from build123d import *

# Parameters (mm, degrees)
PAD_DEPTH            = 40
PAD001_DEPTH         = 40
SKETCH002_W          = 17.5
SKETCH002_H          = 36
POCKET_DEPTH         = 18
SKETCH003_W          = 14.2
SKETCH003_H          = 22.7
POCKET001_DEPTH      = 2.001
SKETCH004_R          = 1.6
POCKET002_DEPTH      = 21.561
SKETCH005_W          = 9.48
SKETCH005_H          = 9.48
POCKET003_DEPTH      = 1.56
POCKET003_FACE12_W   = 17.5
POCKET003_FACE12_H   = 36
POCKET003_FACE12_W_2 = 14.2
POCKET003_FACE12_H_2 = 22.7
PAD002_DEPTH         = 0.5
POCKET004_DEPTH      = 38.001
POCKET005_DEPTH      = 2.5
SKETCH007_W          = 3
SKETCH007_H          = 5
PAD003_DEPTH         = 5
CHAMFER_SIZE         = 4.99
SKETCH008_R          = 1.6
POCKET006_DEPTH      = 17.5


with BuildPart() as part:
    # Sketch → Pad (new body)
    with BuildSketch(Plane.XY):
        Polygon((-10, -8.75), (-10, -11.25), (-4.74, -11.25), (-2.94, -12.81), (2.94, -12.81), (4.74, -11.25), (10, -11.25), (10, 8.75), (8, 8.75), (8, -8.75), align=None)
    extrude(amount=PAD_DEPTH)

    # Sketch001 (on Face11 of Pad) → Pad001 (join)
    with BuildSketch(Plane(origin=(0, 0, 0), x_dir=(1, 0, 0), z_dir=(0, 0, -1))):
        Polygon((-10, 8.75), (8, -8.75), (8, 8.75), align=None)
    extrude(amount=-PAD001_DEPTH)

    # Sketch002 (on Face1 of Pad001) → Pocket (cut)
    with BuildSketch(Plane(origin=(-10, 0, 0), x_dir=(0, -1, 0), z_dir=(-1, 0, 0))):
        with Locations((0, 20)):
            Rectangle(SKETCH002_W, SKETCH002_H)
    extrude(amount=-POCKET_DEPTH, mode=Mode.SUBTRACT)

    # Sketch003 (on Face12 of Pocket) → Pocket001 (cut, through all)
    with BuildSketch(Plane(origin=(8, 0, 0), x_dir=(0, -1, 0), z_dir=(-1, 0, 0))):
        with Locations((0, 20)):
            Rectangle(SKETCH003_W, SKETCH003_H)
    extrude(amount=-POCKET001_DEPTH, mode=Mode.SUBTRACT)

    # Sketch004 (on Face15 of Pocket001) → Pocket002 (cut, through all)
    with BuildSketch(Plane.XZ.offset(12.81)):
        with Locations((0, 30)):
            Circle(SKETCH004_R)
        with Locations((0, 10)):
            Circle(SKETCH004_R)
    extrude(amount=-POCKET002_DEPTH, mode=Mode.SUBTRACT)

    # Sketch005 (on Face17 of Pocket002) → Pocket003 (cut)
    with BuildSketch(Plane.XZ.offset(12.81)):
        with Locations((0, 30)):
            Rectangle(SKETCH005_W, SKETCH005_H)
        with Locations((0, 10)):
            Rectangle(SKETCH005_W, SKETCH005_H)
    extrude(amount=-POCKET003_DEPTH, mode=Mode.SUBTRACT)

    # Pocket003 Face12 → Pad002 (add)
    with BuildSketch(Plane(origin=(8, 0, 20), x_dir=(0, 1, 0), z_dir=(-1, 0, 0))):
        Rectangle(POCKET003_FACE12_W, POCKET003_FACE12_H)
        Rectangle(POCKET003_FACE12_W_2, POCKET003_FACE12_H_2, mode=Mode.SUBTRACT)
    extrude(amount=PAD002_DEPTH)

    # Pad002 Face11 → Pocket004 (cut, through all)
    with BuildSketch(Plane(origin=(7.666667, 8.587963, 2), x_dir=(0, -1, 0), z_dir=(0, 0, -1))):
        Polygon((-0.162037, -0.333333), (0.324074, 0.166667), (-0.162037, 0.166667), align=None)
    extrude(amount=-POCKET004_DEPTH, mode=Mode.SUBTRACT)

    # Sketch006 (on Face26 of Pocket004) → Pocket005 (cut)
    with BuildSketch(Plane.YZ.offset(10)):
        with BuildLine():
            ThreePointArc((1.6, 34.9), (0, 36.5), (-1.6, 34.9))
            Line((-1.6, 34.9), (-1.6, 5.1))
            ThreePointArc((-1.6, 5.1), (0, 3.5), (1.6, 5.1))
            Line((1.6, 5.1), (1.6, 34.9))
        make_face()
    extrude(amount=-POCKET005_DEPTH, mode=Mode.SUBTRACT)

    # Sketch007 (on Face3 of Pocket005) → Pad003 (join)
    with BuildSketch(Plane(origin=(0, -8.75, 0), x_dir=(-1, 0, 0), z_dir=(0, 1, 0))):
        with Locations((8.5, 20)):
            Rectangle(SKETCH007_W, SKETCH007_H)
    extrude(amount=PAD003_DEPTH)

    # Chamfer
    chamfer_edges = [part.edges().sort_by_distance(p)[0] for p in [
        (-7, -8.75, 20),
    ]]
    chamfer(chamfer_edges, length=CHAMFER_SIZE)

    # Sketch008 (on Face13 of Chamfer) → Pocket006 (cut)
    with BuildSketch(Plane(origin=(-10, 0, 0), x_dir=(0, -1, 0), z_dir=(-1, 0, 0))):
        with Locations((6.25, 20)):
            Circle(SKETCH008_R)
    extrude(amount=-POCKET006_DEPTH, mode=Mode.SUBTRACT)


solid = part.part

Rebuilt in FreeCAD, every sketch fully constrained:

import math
import FreeCAD as App
import Part
import Sketcher
from FreeCAD import Vector


def edges_at(feature, points):
    """Names of the edges that pass closest to the given points."""
    edges = feature.Shape.Edges
    near = lambda p: min(range(len(edges)), key=lambda i: edges[i].distToShape(Part.Vertex(*p))[0])
    return sorted({f"Edge{near(p) + 1}" for p in points})

doc = App.newDocument("Part")
params = doc.addObject("Spreadsheet::Sheet", "Params")
for row, (alias, value) in enumerate([
    ("sketch1_width", "2 mm"),
    ("sketch1_width2", "18 mm"),
    ("sketch1_height", "20 mm"),
    ("sketch1_height2", "2.5 mm"),
    ("sketch1_width3", "5.26 mm"),
    ("pad1_length", "40 mm"),
    ("sketch2_width", "18 mm"),
    ("sketch2_height", "17.5 mm"),
    ("pad2_length", "40 mm"),
    ("sketch3_height", "36 mm"),
    ("sketch3_width", "17.5 mm"),
    ("pocket1_length", "18 mm"),
    ("sketch4_width", "14.2 mm"),
    ("sketch4_height", "22.7 mm"),
    ("sketch5_diameter", "3.2 mm"),
    ("sketch6_width", "9.48 mm"),
    ("pocket4_length", "1.56 mm"),
    ("sketch7_height", "36 mm"),
    ("sketch7_width", "17.5 mm"),
    ("sketch7_width2", "14.2 mm"),
    ("sketch7_height2", "22.7 mm"),
    ("pad3_length", "0.5 mm"),
    ("sketch8_width", "0.5 mm"),
    ("sketch9_radius", "1.6 mm"),
    ("sketch9_height", "29.8 mm"),
    ("pocket6_length", "2.5 mm"),
    ("sketch10_width", "3 mm"),
    ("sketch10_height", "5 mm"),
    ("pad4_length", "5 mm"),
    ("chamfer_size", "4.99 mm"),
    ("sketch11_diameter", "3.2 mm"),
    ("pocket7_length", "17.5 mm"),
], start=1):
    params.set(f"A{row}", alias)
    params.set(f"B{row}", "=" + value)
    params.setAlias(f"B{row}", alias)

body = doc.addObject("PartDesign::Body", "Body")

sketch1 = body.newObject("Sketcher::SketchObject", "Sketch")
sketch1.AttachmentSupport = (doc.getObject("XY_Plane"), [""])
sketch1.MapMode = "FlatFace"
sketch1.addGeometry([
    Part.LineSegment(Vector(-10, -8.8, 0), Vector(-10, -11.2, 0)),
    Part.LineSegment(Vector(-10, -11.2, 0), Vector(-4.7, -11.2, 0)),
    Part.LineSegment(Vector(-4.7, -11.2, 0), Vector(-2.9, -12.8, 0)),
    Part.LineSegment(Vector(-2.9, -12.8, 0), Vector(2.9, -12.8, 0)),
    Part.LineSegment(Vector(2.9, -12.8, 0), Vector(4.7, -11.2, 0)),
    Part.LineSegment(Vector(4.7, -11.2, 0), Vector(10, -11.2, 0)),
    Part.LineSegment(Vector(10, -11.2, 0), Vector(10, 8.8, 0)),
    Part.LineSegment(Vector(10, 8.8, 0), Vector(8, 8.8, 0)),
    Part.LineSegment(Vector(8, 8.8, 0), Vector(8, -8.8, 0)),
    Part.LineSegment(Vector(8, -8.8, 0), Vector(-10, -8.8, 0)),
], False)
sketch1.addConstraint([
    Sketcher.Constraint("Coincident", 0, 2, 1, 1),
    Sketcher.Constraint("Coincident", 1, 2, 2, 1),
    Sketcher.Constraint("Coincident", 2, 2, 3, 1),
    Sketcher.Constraint("Coincident", 3, 2, 4, 1),
    Sketcher.Constraint("Coincident", 4, 2, 5, 1),
    Sketcher.Constraint("Coincident", 5, 2, 6, 1),
    Sketcher.Constraint("Coincident", 6, 2, 7, 1),
    Sketcher.Constraint("Coincident", 7, 2, 8, 1),
    Sketcher.Constraint("Coincident", 8, 2, 9, 1),
    Sketcher.Constraint("Coincident", 9, 2, 0, 1),
    Sketcher.Constraint("Vertical", 0),
    Sketcher.Constraint("Horizontal", 1),
    Sketcher.Constraint("Horizontal", 3),
    Sketcher.Constraint("Horizontal", 5),
    Sketcher.Constraint("Vertical", 6),
    Sketcher.Constraint("Horizontal", 7),
    Sketcher.Constraint("Vertical", 8),
    Sketcher.Constraint("Horizontal", 9),
    Sketcher.Constraint("Symmetric", 6, 2, 9, 2, -1, 1),
    Sketcher.Constraint("Symmetric", 1, 2, 4, 2, -2),
    Sketcher.Constraint("Equal", 2, 4),
    Sketcher.Constraint("DistanceX", 7, 2, 7, 1, 2.0),
    Sketcher.Constraint("DistanceX", 9, 2, 9, 1, 18.0),
    Sketcher.Constraint("DistanceY", 6, 1, 6, 2, 20.0),
    Sketcher.Constraint("DistanceY", 0, 2, 0, 1, 2.5),
    Sketcher.Constraint("DistanceX", 1, 1, 1, 2, 5.26),
    Sketcher.Constraint("DistanceX", 3, 1, 3, 2, 5.88),
    Sketcher.Constraint("DistanceY", 2, 2, -1, 1, 12.81),
])
sketch1.setExpression("Constraints[21]", "Params.sketch1_width")
sketch1.setExpression("Constraints[22]", "Params.sketch1_width2")
sketch1.setExpression("Constraints[23]", "Params.sketch1_height")
sketch1.setExpression("Constraints[24]", "Params.sketch1_height2")
sketch1.setExpression("Constraints[25]", "Params.sketch1_width3")
pad1 = body.newObject("PartDesign::Pad", "Pad")
pad1.Profile = sketch1
pad1.setExpression("Length", "Params.pad1_length")

sketch2 = body.newObject("Sketcher::SketchObject", "Sketch001")
sketch2.AttachmentSupport = (doc.getObject("XY_Plane"), [""])
sketch2.MapMode = "FlatFace"
sketch2.addGeometry([
    Part.LineSegment(Vector(-10, -9, 0), Vector(8, 9, 0)),
    Part.LineSegment(Vector(8, 9, 0), Vector(8, -9, 0)),
    Part.LineSegment(Vector(8, -9, 0), Vector(-10, -9, 0)),
], False)
sketch2.addConstraint([
    Sketcher.Constraint("Coincident", 0, 2, 1, 1),
    Sketcher.Constraint("Coincident", 1, 2, 2, 1),
    Sketcher.Constraint("Coincident", 2, 2, 0, 1),
    Sketcher.Constraint("Vertical", 1),
    Sketcher.Constraint("Horizontal", 2),
    Sketcher.Constraint("DistanceX", 2, 2, 2, 1, 18.0),
    Sketcher.Constraint("DistanceY", 1, 2, 1, 1, 17.5),
    Sketcher.Constraint("DistanceX", -1, 1, 0, 2, 8.0),
    Sketcher.Constraint("DistanceY", -1, 1, 0, 2, 8.75),
])
sketch2.setExpression("Constraints[5]", "Params.sketch2_width")
sketch2.setExpression("Constraints[6]", "Params.sketch2_height")
pad2 = body.newObject("PartDesign::Pad", "Pad001")
pad2.Profile = sketch2
pad2.setExpression("Length", "Params.pad2_length")

sketch3 = body.newObject("Sketcher::SketchObject", "Sketch002")
sketch3.AttachmentSupport = (doc.getObject("YZ_Plane"), [""])
sketch3.MapMode = "FlatFace"
sketch3.AttachmentOffset = App.Placement(Vector(0, 0, -10), App.Rotation())
sketch3.addGeometry([
    Part.LineSegment(Vector(9, 38, 0), Vector(9, 2, 0)),
    Part.LineSegment(Vector(9, 2, 0), Vector(-9, 2, 0)),
    Part.LineSegment(Vector(-9, 2, 0), Vector(-9, 38, 0)),
    Part.LineSegment(Vector(-9, 38, 0), Vector(9, 38, 0)),
], False)
sketch3.addConstraint([
    Sketcher.Constraint("Coincident", 0, 2, 1, 1),
    Sketcher.Constraint("Coincident", 1, 2, 2, 1),
    Sketcher.Constraint("Coincident", 2, 2, 3, 1),
    Sketcher.Constraint("Coincident", 3, 2, 0, 1),
    Sketcher.Constraint("Vertical", 0),
    Sketcher.Constraint("Horizontal", 1),
    Sketcher.Constraint("Vertical", 2),
    Sketcher.Constraint("Horizontal", 3),
    Sketcher.Constraint("DistanceY", 0, 2, 0, 1, 36.0),
    Sketcher.Constraint("DistanceX", 1, 2, 1, 1, 17.5),
    Sketcher.Constraint("DistanceY", -1, 1, 0, 2, 2.0),
    Sketcher.Constraint("DistanceX", -1, 1, 0, 2, 8.75),
])
sketch3.setExpression("Constraints[8]", "Params.sketch3_height")
sketch3.setExpression("Constraints[9]", "Params.sketch3_width")
pocket1 = body.newObject("PartDesign::Pocket", "Pocket")
pocket1.Profile = sketch3
pocket1.setExpression("Length", "Params.pocket1_length")
pocket1.Reversed = True

sketch4 = body.newObject("Sketcher::SketchObject", "Sketch003")
sketch4.AttachmentSupport = (doc.getObject("YZ_Plane"), [""])
sketch4.MapMode = "FlatFace"
sketch4.AttachmentOffset = App.Placement(Vector(0, 0, 8), App.Rotation())
sketch4.addGeometry([
    Part.LineSegment(Vector(7, 31, 0), Vector(7, 9, 0)),
    Part.LineSegment(Vector(7, 9, 0), Vector(-7, 9, 0)),
    Part.LineSegment(Vector(-7, 9, 0), Vector(-7, 31, 0)),
    Part.LineSegment(Vector(-7, 31, 0), Vector(7, 31, 0)),
], False)
sketch4.addConstraint([
    Sketcher.Constraint("Coincident", 0, 2, 1, 1),
    Sketcher.Constraint("Coincident", 1, 2, 2, 1),
    Sketcher.Constraint("Coincident", 2, 2, 3, 1),
    Sketcher.Constraint("Coincident", 3, 2, 0, 1),
    Sketcher.Constraint("Vertical", 0),
    Sketcher.Constraint("Horizontal", 1),
    Sketcher.Constraint("Vertical", 2),
    Sketcher.Constraint("Horizontal", 3),
    Sketcher.Constraint("DistanceX", 1, 2, 1, 1, 14.2),
    Sketcher.Constraint("DistanceY", 0, 2, 0, 1, 22.7),
    Sketcher.Constraint("DistanceX", -1, 1, 0, 2, 7.1),
    Sketcher.Constraint("DistanceY", -1, 1, 0, 2, 8.65),
])
sketch4.setExpression("Constraints[8]", "Params.sketch4_width")
sketch4.setExpression("Constraints[9]", "Params.sketch4_height")
pocket2 = body.newObject("PartDesign::Pocket", "Pocket001")
pocket2.Profile = sketch4
pocket2.Type = "ThroughAll"
pocket2.Reversed = True

sketch5 = body.newObject("Sketcher::SketchObject", "Sketch004")
sketch5.AttachmentSupport = (doc.getObject("XZ_Plane"), [""])
sketch5.MapMode = "FlatFace"
sketch5.AttachmentOffset = App.Placement(Vector(0, 0, 12.81), App.Rotation())
sketch5.addGeometry([
    Part.Circle(Vector(0, 30, 0), Vector(0, 0, 1), 1.6),
    Part.Circle(Vector(0, 10, 0), Vector(0, 0, 1), 1.6),
], False)
sketch5.addConstraint([
    Sketcher.Constraint("Equal", 0, 1),
    Sketcher.Constraint("PointOnObject", 0, 3, -2),
    Sketcher.Constraint("PointOnObject", 1, 3, -2),
    Sketcher.Constraint("Diameter", 0, 3.2),
    Sketcher.Constraint("DistanceY", -1, 1, 0, 3, 30.0),
    Sketcher.Constraint("DistanceY", -1, 1, 1, 3, 10.0),
])
sketch5.setExpression("Constraints[3]", "Params.sketch5_diameter")
pocket3 = body.newObject("PartDesign::Pocket", "Pocket002")
pocket3.Profile = sketch5
pocket3.Type = "ThroughAll"

sketch6 = body.newObject("Sketcher::SketchObject", "Sketch005")
sketch6.AttachmentSupport = (doc.getObject("XZ_Plane"), [""])
sketch6.MapMode = "FlatFace"
sketch6.AttachmentOffset = App.Placement(Vector(0, 0, 12.81), App.Rotation())
sketch6.addGeometry([
    Part.LineSegment(Vector(-5, 35, 0), Vector(-5, 25, 0)),
    Part.LineSegment(Vector(-5, 25, 0), Vector(5, 25, 0)),
    Part.LineSegment(Vector(5, 25, 0), Vector(5, 35, 0)),
    Part.LineSegment(Vector(5, 35, 0), Vector(-5, 35, 0)),
    Part.LineSegment(Vector(-5, 15, 0), Vector(-5, 5, 0)),
    Part.LineSegment(Vector(-5, 5, 0), Vector(5, 5, 0)),
    Part.LineSegment(Vector(5, 5, 0), Vector(5, 15, 0)),
    Part.LineSegment(Vector(5, 15, 0), Vector(-5, 15, 0)),
], False)
sketch6.addConstraint([
    Sketcher.Constraint("Coincident", 0, 2, 1, 1),
    Sketcher.Constraint("Coincident", 1, 2, 2, 1),
    Sketcher.Constraint("Coincident", 2, 2, 3, 1),
    Sketcher.Constraint("Coincident", 3, 2, 0, 1),
    Sketcher.Constraint("Coincident", 4, 2, 5, 1),
    Sketcher.Constraint("Coincident", 5, 2, 6, 1),
    Sketcher.Constraint("Coincident", 6, 2, 7, 1),
    Sketcher.Constraint("Coincident", 7, 2, 4, 1),
    Sketcher.Constraint("Vertical", 0),
    Sketcher.Constraint("Horizontal", 1),
    Sketcher.Constraint("Vertical", 2),
    Sketcher.Constraint("Horizontal", 3),
    Sketcher.Constraint("Vertical", 4),
    Sketcher.Constraint("Horizontal", 5),
    Sketcher.Constraint("Vertical", 6),
    Sketcher.Constraint("Horizontal", 7),
    Sketcher.Constraint("Vertical", 3, 2, 4, 2),
    Sketcher.Constraint("Vertical", 2, 2, 5, 2),
    Sketcher.Constraint("Equal", 7, 0),
    Sketcher.Constraint("Equal", 2, 4),
    Sketcher.Constraint("DistanceY", 4, 2, 0, 2, 20.0),
    Sketcher.Constraint("DistanceX", 1, 1, 1, 2, 9.48),
    Sketcher.Constraint("DistanceX", 0, 2, -1, 1, 4.74),
    Sketcher.Constraint("DistanceY", -1, 1, 0, 2, 25.26),
])
sketch6.setExpression("Constraints[21]", "Params.sketch6_width")
pocket4 = body.newObject("PartDesign::Pocket", "Pocket003")
pocket4.Profile = sketch6
pocket4.setExpression("Length", "Params.pocket4_length")

sketch7 = body.newObject("Sketcher::SketchObject", "Sketch006")
sketch7.AttachmentSupport = (doc.getObject("YZ_Plane"), [""])
sketch7.MapMode = "FlatFace"
sketch7.AttachmentOffset = App.Placement(Vector(0, 0, 8), App.Rotation())
sketch7.addGeometry([
    Part.LineSegment(Vector(-9, 2, 0), Vector(-9, 38, 0)),
    Part.LineSegment(Vector(-9, 38, 0), Vector(9, 38, 0)),
    Part.LineSegment(Vector(9, 38, 0), Vector(9, 2, 0)),
    Part.LineSegment(Vector(9, 2, 0), Vector(-9, 2, 0)),
    Part.LineSegment(Vector(7, 31, 0), Vector(-7, 31, 0)),
    Part.LineSegment(Vector(-7, 31, 0), Vector(-7, 9, 0)),
    Part.LineSegment(Vector(-7, 9, 0), Vector(7, 9, 0)),
    Part.LineSegment(Vector(7, 9, 0), Vector(7, 31, 0)),
], False)
sketch7.addConstraint([
    Sketcher.Constraint("Coincident", 0, 2, 1, 1),
    Sketcher.Constraint("Coincident", 1, 2, 2, 1),
    Sketcher.Constraint("Coincident", 2, 2, 3, 1),
    Sketcher.Constraint("Coincident", 3, 2, 0, 1),
    Sketcher.Constraint("Coincident", 4, 2, 5, 1),
    Sketcher.Constraint("Coincident", 5, 2, 6, 1),
    Sketcher.Constraint("Coincident", 6, 2, 7, 1),
    Sketcher.Constraint("Coincident", 7, 2, 4, 1),
    Sketcher.Constraint("Vertical", 0),
    Sketcher.Constraint("Horizontal", 1),
    Sketcher.Constraint("Vertical", 2),
    Sketcher.Constraint("Horizontal", 3),
    Sketcher.Constraint("Horizontal", 4),
    Sketcher.Constraint("Vertical", 5),
    Sketcher.Constraint("Horizontal", 6),
    Sketcher.Constraint("Vertical", 7),
    Sketcher.Constraint("DistanceY", 0, 1, 0, 2, 36.0),
    Sketcher.Constraint("DistanceX", 1, 1, 1, 2, 17.5),
    Sketcher.Constraint("DistanceX", 4, 2, 4, 1, 14.2),
    Sketcher.Constraint("DistanceY", 5, 2, 5, 1, 22.7),
    Sketcher.Constraint("DistanceY", -1, 1, 0, 2, 38.0),
    Sketcher.Constraint("DistanceX", 4, 2, -1, 1, 7.1),
    Sketcher.Constraint("DistanceX", 0, 2, -1, 1, 8.75),
    Sketcher.Constraint("DistanceY", -1, 1, 4, 2, 31.35),
])
sketch7.setExpression("Constraints[16]", "Params.sketch7_height")
sketch7.setExpression("Constraints[17]", "Params.sketch7_width")
sketch7.setExpression("Constraints[18]", "Params.sketch7_width2")
sketch7.setExpression("Constraints[19]", "Params.sketch7_height2")
pad3 = body.newObject("PartDesign::Pad", "Pad002")
pad3.Profile = sketch7
pad3.setExpression("Length", "Params.pad3_length")
pad3.Reversed = True

sketch8 = body.newObject("Sketcher::SketchObject", "Sketch007")
sketch8.AttachmentSupport = (doc.getObject("XY_Plane"), [""])
sketch8.MapMode = "FlatFace"
sketch8.AttachmentOffset = App.Placement(Vector(0, 0, 2), App.Rotation())
sketch8.addGeometry([
    Part.LineSegment(Vector(8, 8.75, 0), Vector(7.5, 8.26, 0)),
    Part.LineSegment(Vector(7.5, 8.26, 0), Vector(7.5, 8.75, 0)),
    Part.LineSegment(Vector(7.5, 8.75, 0), Vector(8, 8.75, 0)),
], False)
sketch8.addConstraint([
    Sketcher.Constraint("Coincident", 0, 2, 1, 1),
    Sketcher.Constraint("Coincident", 1, 2, 2, 1),
    Sketcher.Constraint("Coincident", 2, 2, 0, 1),
    Sketcher.Constraint("Vertical", 1),
    Sketcher.Constraint("Horizontal", 2),
    Sketcher.Constraint("DistanceX", 2, 1, 2, 2, 0.5),
    Sketcher.Constraint("DistanceX", -1, 1, 2, 2, 8.0),
    Sketcher.Constraint("DistanceY", -1, 1, 1, 2, 8.75),
    Sketcher.Constraint("DistanceY", 1, 1, 1, 2, 0.486111),
])
sketch8.setExpression("Constraints[5]", "Params.sketch8_width")
pocket5 = body.newObject("PartDesign::Pocket", "Pocket004")
pocket5.Profile = sketch8
pocket5.Type = "ThroughAll"
pocket5.Reversed = True

sketch9 = body.newObject("Sketcher::SketchObject", "Sketch008")
sketch9.AttachmentSupport = (doc.getObject("YZ_Plane"), [""])
sketch9.MapMode = "FlatFace"
sketch9.AttachmentOffset = App.Placement(Vector(0, 0, 10), App.Rotation())
sketch9.addGeometry([
    Part.ArcOfCircle(Part.Circle(Vector(0, 34.9, 0), Vector(0, 0, 1), 1.6), math.radians(0), math.radians(180)),
    Part.LineSegment(Vector(-1.6, 34.9, 0), Vector(-1.6, 5.1, 0)),
    Part.ArcOfCircle(Part.Circle(Vector(0, 5.1, 0), Vector(0, 0, 1), 1.6), math.radians(180), math.radians(360)),
    Part.LineSegment(Vector(1.6, 5.1, 0), Vector(1.6, 34.9, 0)),
], False)
sketch9.addConstraint([
    Sketcher.Constraint("Tangent", 0, 2, 1, 1),
    Sketcher.Constraint("Tangent", 1, 2, 2, 1),
    Sketcher.Constraint("Tangent", 2, 2, 3, 1),
    Sketcher.Constraint("Tangent", 3, 2, 0, 1),
    Sketcher.Constraint("Vertical", 1),
    Sketcher.Constraint("Vertical", 3),
    Sketcher.Constraint("PointOnObject", 0, 3, -2),
    Sketcher.Constraint("Radius", 0, 1.6),
    Sketcher.Constraint("DistanceY", 1, 2, 1, 1, 29.8),
    Sketcher.Constraint("DistanceY", -1, 1, 0, 3, 34.9),
])
sketch9.setExpression("Constraints[7]", "Params.sketch9_radius")
sketch9.setExpression("Constraints[8]", "Params.sketch9_height")
pocket6 = body.newObject("PartDesign::Pocket", "Pocket005")
pocket6.Profile = sketch9
pocket6.setExpression("Length", "Params.pocket6_length")

sketch10 = body.newObject("Sketcher::SketchObject", "Sketch009")
sketch10.AttachmentSupport = (doc.getObject("XZ_Plane"), [""])
sketch10.MapMode = "FlatFace"
sketch10.AttachmentOffset = App.Placement(Vector(0, 0, 8.75), App.Rotation())
sketch10.addGeometry([
    Part.LineSegment(Vector(-7, 22.5, 0), Vector(-7, 17.5, 0)),
    Part.LineSegment(Vector(-7, 17.5, 0), Vector(-10, 17.5, 0)),
    Part.LineSegment(Vector(-10, 17.5, 0), Vector(-10, 22.5, 0)),
    Part.LineSegment(Vector(-10, 22.5, 0), Vector(-7, 22.5, 0)),
], False)
sketch10.addConstraint([
    Sketcher.Constraint("Coincident", 0, 2, 1, 1),
    Sketcher.Constraint("Coincident", 1, 2, 2, 1),
    Sketcher.Constraint("Coincident", 2, 2, 3, 1),
    Sketcher.Constraint("Coincident", 3, 2, 0, 1),
    Sketcher.Constraint("Vertical", 0),
    Sketcher.Constraint("Horizontal", 1),
    Sketcher.Constraint("Vertical", 2),
    Sketcher.Constraint("Horizontal", 3),
    Sketcher.Constraint("DistanceX", 1, 2, 1, 1, 3.0),
    Sketcher.Constraint("DistanceY", 0, 2, 0, 1, 5.0),
    Sketcher.Constraint("DistanceX", 0, 2, -1, 1, 7.0),
    Sketcher.Constraint("DistanceY", -1, 1, 0, 2, 17.5),
])
sketch10.setExpression("Constraints[8]", "Params.sketch10_width")
sketch10.setExpression("Constraints[9]", "Params.sketch10_height")
pad4 = body.newObject("PartDesign::Pad", "Pad003")
pad4.Profile = sketch10
pad4.setExpression("Length", "Params.pad4_length")
pad4.Reversed = True
doc.recompute()

chamfer = body.newObject("PartDesign::Chamfer", "Chamfer")
chamfer.Base = (pad4, edges_at(pad4, [(-7, -8.75, 20)]))
chamfer.setExpression("Size", "Params.chamfer_size")

sketch11 = body.newObject("Sketcher::SketchObject", "Sketch010")
sketch11.AttachmentSupport = (doc.getObject("YZ_Plane"), [""])
sketch11.MapMode = "FlatFace"
sketch11.AttachmentOffset = App.Placement(Vector(0, 0, -10), App.Rotation())
sketch11.addGeometry(Part.Circle(Vector(-6.2, 20, 0), Vector(0, 0, 1), 1.6), False)
sketch11.addConstraint([
    Sketcher.Constraint("Diameter", 0, 3.2),
    Sketcher.Constraint("DistanceY", -1, 1, 0, 3, 20.0),
    Sketcher.Constraint("DistanceX", 0, 3, -1, 1, 6.25),
])
sketch11.setExpression("Constraints[0]", "Params.sketch11_diameter")
pocket7 = body.newObject("PartDesign::Pocket", "Pocket006")
pocket7.Profile = sketch11
pocket7.setExpression("Length", "Params.pocket7_length")
pocket7.Reversed = True

doc.recompute()
